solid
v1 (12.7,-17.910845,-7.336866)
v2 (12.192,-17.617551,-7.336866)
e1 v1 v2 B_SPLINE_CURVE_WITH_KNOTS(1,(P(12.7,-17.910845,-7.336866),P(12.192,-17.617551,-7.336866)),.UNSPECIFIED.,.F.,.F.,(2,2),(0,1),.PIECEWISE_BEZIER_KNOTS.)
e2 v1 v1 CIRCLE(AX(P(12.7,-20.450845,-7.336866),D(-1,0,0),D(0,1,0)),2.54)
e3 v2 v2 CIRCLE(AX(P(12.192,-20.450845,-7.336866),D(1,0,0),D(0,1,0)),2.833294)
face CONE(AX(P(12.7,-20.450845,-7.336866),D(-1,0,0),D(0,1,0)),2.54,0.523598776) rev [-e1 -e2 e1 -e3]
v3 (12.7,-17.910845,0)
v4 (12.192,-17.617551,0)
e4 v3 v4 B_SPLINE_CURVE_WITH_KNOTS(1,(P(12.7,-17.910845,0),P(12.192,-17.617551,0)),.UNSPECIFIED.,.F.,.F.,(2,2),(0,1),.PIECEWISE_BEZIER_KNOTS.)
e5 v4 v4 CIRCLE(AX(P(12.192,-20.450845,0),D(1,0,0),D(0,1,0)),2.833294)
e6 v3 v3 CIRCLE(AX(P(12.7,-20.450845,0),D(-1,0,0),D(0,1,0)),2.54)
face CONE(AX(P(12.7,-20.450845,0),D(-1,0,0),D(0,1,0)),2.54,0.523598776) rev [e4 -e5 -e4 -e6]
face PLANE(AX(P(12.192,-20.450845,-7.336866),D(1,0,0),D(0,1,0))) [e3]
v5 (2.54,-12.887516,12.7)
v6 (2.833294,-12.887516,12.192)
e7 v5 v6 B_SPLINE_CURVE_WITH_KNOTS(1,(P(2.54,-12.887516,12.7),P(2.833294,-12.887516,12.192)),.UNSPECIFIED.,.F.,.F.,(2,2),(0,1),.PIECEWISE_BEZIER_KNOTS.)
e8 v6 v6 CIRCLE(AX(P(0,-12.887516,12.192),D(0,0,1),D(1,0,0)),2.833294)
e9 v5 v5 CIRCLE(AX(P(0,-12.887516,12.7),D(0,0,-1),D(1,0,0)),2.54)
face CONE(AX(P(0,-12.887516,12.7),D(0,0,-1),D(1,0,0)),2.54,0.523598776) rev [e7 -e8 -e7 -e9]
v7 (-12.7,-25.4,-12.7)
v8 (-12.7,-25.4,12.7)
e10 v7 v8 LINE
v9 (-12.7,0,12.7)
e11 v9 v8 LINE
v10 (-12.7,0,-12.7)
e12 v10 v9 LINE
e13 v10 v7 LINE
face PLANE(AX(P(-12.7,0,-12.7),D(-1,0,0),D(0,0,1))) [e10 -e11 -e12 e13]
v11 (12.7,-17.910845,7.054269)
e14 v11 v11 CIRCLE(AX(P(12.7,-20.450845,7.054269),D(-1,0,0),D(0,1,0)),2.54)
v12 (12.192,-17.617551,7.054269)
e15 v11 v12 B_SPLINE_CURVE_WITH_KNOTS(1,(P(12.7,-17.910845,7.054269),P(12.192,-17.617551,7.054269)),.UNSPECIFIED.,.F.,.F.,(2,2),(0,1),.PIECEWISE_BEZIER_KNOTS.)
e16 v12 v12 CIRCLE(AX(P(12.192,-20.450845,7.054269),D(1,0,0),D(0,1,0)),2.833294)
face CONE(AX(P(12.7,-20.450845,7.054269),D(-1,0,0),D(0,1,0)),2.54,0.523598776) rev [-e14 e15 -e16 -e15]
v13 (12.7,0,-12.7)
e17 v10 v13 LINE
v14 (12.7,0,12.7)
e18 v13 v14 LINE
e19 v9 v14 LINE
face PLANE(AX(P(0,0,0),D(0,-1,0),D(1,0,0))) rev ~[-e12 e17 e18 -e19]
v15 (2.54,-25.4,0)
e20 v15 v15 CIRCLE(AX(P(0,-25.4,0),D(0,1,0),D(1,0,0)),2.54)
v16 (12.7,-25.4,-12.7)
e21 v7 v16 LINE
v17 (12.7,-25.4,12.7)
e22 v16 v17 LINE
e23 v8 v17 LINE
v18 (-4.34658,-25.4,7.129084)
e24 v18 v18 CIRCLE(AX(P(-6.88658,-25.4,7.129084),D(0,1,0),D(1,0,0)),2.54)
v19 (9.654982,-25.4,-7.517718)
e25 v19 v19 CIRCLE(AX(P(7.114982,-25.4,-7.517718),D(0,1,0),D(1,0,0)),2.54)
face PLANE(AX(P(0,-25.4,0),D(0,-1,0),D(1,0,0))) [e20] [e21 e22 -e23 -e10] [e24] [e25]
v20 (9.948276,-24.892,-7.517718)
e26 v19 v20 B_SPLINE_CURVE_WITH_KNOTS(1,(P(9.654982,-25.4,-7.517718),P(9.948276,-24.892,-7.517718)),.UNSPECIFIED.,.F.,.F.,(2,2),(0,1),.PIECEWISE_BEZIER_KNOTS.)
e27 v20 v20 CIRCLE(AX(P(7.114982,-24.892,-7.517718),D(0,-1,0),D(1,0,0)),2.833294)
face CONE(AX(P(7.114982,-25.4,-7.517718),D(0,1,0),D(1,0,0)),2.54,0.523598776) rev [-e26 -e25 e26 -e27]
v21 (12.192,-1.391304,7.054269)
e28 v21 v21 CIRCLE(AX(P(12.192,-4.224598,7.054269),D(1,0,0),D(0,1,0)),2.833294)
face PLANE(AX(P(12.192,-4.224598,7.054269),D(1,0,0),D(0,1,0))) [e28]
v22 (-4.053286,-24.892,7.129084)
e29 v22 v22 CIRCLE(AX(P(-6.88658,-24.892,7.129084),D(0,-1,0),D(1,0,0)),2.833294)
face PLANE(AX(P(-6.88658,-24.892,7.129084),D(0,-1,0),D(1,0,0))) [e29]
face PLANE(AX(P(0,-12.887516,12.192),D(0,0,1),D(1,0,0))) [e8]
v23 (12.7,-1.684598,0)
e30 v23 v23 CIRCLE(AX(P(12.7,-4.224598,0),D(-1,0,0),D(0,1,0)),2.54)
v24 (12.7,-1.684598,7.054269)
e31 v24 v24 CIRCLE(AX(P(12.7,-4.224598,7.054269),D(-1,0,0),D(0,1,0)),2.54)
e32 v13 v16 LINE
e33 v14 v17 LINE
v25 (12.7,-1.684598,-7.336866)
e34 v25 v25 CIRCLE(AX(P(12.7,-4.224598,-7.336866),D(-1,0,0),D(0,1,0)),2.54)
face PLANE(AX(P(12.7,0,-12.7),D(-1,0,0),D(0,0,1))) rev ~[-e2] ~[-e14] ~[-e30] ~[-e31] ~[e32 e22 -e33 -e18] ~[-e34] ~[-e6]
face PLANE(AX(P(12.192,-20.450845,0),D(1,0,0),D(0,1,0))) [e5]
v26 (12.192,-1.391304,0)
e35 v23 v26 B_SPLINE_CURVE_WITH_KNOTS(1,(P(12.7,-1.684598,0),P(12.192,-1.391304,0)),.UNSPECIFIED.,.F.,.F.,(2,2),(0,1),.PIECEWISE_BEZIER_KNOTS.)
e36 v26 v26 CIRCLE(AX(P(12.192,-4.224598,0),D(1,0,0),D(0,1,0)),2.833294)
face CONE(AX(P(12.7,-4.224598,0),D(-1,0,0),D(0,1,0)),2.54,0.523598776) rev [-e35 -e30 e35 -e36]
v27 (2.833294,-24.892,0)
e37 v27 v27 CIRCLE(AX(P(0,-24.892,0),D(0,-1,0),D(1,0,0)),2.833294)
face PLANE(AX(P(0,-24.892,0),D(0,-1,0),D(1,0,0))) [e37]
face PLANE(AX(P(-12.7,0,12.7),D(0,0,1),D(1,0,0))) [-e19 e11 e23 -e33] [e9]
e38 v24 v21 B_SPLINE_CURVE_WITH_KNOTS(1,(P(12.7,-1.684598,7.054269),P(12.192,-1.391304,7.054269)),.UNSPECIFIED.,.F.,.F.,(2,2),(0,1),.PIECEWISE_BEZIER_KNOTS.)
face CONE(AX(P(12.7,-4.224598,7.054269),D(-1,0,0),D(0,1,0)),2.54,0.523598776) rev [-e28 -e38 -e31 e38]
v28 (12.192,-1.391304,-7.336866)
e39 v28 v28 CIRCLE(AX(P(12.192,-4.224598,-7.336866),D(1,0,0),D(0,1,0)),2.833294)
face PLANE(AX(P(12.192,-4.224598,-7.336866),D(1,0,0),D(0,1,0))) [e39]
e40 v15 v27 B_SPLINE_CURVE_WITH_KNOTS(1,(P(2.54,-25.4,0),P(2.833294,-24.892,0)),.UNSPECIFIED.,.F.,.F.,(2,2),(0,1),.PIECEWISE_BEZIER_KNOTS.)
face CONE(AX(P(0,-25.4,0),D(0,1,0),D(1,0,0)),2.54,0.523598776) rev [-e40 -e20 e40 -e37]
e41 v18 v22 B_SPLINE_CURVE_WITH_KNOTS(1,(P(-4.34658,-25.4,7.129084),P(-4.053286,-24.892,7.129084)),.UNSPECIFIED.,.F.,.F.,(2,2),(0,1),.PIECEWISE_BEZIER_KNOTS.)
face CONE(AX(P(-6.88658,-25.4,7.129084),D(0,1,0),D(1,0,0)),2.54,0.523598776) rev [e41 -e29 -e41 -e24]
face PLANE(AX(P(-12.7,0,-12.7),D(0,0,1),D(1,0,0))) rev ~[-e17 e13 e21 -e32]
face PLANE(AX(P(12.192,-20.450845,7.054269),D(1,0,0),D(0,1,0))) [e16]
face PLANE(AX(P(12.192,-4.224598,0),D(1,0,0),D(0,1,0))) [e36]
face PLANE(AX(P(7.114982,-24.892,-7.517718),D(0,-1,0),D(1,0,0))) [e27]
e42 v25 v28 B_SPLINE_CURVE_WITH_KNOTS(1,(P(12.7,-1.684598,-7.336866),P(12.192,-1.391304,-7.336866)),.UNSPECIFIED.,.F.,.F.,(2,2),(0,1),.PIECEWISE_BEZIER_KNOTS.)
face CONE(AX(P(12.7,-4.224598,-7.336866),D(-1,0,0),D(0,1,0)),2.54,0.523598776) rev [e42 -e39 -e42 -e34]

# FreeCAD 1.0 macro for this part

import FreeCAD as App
import Part
import Sketcher

V = App.Vector
Q = App.Units.Quantity

doc = App.newDocument("Part")
params = doc.addObject("Spreadsheet::Sheet", "Params")
for row, (alias, value) in enumerate([
    ("sketch1_width", "1 in"),
    ("pad1_length", "1 in"),
    ("sketch2_diameter", "0.2 in"),
    ("pocket1_length", "0.02 in"),
    ("pocket1_taper", "30 deg"),
    ("sketch3_diameter", "0.2 in"),
    ("pocket2_length", "0.02 in"),
    ("pocket2_taper", "30 deg"),
    ("sketch4_diameter", "0.2 in"),
    ("pocket3_length", "0.02 in"),
    ("pocket3_taper", "30 deg"),
], start=1):
    params.set(f"A{row}", alias)
    params.set(f"B{row}", "=" + value)
    params.setAlias(f"B{row}", alias)

body = doc.addObject("PartDesign::Body", "Body")

# Sketch on XZ plane
sketch1 = doc.addObject("Sketcher::SketchObject", "Sketch")
body.addObject(sketch1)
sketch1.AttachmentSupport = (doc.XZ_Plane, [""])
sketch1.MapMode = "FlatFace"
sketch1.addGeometry([
    Part.LineSegment(V(-13, 13, 0), V(-13, -13, 0)),
    Part.LineSegment(V(-13, -13, 0), V(13, -13, 0)),
    Part.LineSegment(V(13, -13, 0), V(13, 13, 0)),
    Part.LineSegment(V(13, 13, 0), V(-13, 13, 0)),
], False)
sketch1.addConstraint([
    Sketcher.Constraint("Coincident", 0, 2, 1, 1),
    Sketcher.Constraint("Coincident", 1, 2, 2, 1),
    Sketcher.Constraint("Coincident", 2, 2, 3, 1),
    Sketcher.Constraint("Coincident", 3, 2, 0, 1),
    Sketcher.Constraint("Vertical", 0),
    Sketcher.Constraint("Horizontal", 1),
    Sketcher.Constraint("Vertical", 2),
    Sketcher.Constraint("Horizontal", 3),
    Sketcher.Constraint("Symmetric", 0, 2, 2, 2, -1, 1),
    Sketcher.Constraint("Equal", 3, 0),
    Sketcher.Constraint("DistanceX", 1, 1, 1, 2, Q("1 in")),
])
sketch1.setExpression("Constraints[10]", "Params.sketch1_width")
pad1 = doc.addObject("PartDesign::Pad", "Pad")
body.addObject(pad1)
pad1.Profile = sketch1
pad1.setExpression("Length", "Params.pad1_length")

# Sketch on XY plane
sketch2 = doc.addObject("Sketcher::SketchObject", "Sketch001")
body.addObject(sketch2)
sketch2.AttachmentSupport = (doc.XY_Plane, [""])
sketch2.MapMode = "FlatFace"
sketch2.AttachmentOffset = App.Placement(V(0, 0, 0.5 * 25.4), App.Rotation())
sketch2.addGeometry(Part.Circle(V(0, -12.9, 0), V(0, 0, 1), 2.5), False)
sketch2.addConstraint([
    Sketcher.Constraint("PointOnObject", 0, 3, -2),
    Sketcher.Constraint("Diameter", 0, Q("0.2 in")),
    Sketcher.Constraint("DistanceY", 0, 3, -1, 1, Q("12.887516 mm")),
])
sketch2.setExpression("Constraints[1]", "Params.sketch2_diameter")
pocket1 = doc.addObject("PartDesign::Pocket", "Pocket")
body.addObject(pocket1)
pocket1.Profile = sketch2
pocket1.setExpression("Length", "Params.pocket1_length")
pocket1.setExpression("TaperAngle", "Params.pocket1_taper")

# Sketch on XZ plane
sketch3 = doc.addObject("Sketcher::SketchObject", "Sketch002")
body.addObject(sketch3)
sketch3.AttachmentSupport = (doc.XZ_Plane, [""])
sketch3.MapMode = "FlatFace"
sketch3.AttachmentOffset = App.Placement(V(0, 0, 1 * 25.4), App.Rotation())
sketch3.addGeometry([
    Part.Circle(V(-6.9, 7.1, 0), V(0, 0, 1), 2.5),
    Part.Circle(V(0, 0, 0), V(0, 0, 1), 2.5),
    Part.Circle(V(7.1, -7.5, 0), V(0, 0, 1), 2.5),
], False)
sketch3.addConstraint([
    Sketcher.Constraint("Coincident", 1, 3, -1, 1),
    Sketcher.Constraint("Equal", 0, 1),
    Sketcher.Constraint("Equal", 1, 2),
    Sketcher.Constraint("Diameter", 0, Q("0.2 in")),
    Sketcher.Constraint("DistanceY", 2, 3, 0, 3, Q("14.646802 mm")),
    Sketcher.Constraint("DistanceX", 0, 3, -1, 1, Q("6.88658 mm")),
    Sketcher.Constraint("DistanceY", -1, 1, 0, 3, Q("7.129084 mm")),
    Sketcher.Constraint("DistanceX", -1, 1, 2, 3, Q("7.114982 mm")),
])
sketch3.setExpression("Constraints[3]", "Params.sketch3_diameter")
pocket2 = doc.addObject("PartDesign::Pocket", "Pocket001")
body.addObject(pocket2)
pocket2.Profile = sketch3
pocket2.setExpression("Length", "Params.pocket2_length")
pocket2.setExpression("TaperAngle", "Params.pocket2_taper")

# Sketch on YZ plane
sketch4 = doc.addObject("Sketcher::SketchObject", "Sketch003")
body.addObject(sketch4)
sketch4.AttachmentSupport = (doc.YZ_Plane, [""])
sketch4.MapMode = "FlatFace"
sketch4.AttachmentOffset = App.Placement(V(0, 0, 0.5 * 25.4), App.Rotation())
sketch4.addGeometry([
    Part.Circle(V(-20.5, 7.1, 0), V(0, 0, 1), 2.5),  # 0
    Part.Circle(V(-20.5, 0, 0), V(0, 0, 1), 2.5),  # 1
    Part.Circle(V(-20.5, -7.3, 0), V(0, 0, 1), 2.5),  # 2
    Part.Circle(V(-4.2, -7.3, 0), V(0, 0, 1), 2.5),  # 3
    Part.Circle(V(-4.2, 0, 0), V(0, 0, 1), 2.5),  # 4
    Part.Circle(V(-4.2, 7.1, 0), V(0, 0, 1), 2.5),  # 5
], False)
sketch4.addConstraint([
    Sketcher.Constraint("Equal", 0, 1),
    Sketcher.Constraint("Equal", 1, 2),
    Sketcher.Constraint("Equal", 2, 3),
    Sketcher.Constraint("Equal", 3, 4),
    Sketcher.Constraint("Equal", 4, 5),
    Sketcher.Constraint("PointOnObject", 1, 3, -1),
    Sketcher.Constraint("PointOnObject", 4, 3, -1),
    Sketcher.Constraint("Horizontal", 2, 3, 3, 3),
    Sketcher.Constraint("Horizontal", 0, 3, 5, 3),
    Sketcher.Constraint("Vertical", 0, 3, 1, 3),
    Sketcher.Constraint("Vertical", 1, 3, 2, 3),
    Sketcher.Constraint("Vertical", 3, 3, 4, 3),
    Sketcher.Constraint("Vertical", 4, 3, 5, 3),
    Sketcher.Constraint("Diameter", 0, Q("0.2 in")),
    Sketcher.Constraint("DistanceY", -1, 1, 0, 3, Q("7.054269 mm")),
    Sketcher.Constraint("DistanceX", 0, 3, -1, 1, Q("20.450845 mm")),
    Sketcher.Constraint("DistanceY", 2, 3, -1, 1, Q("7.336866 mm")),
    Sketcher.Constraint("DistanceX", 3, 3, -1, 1, Q("4.224598 mm")),
])
sketch4.setExpression("Constraints[13]", "Params.sketch4_diameter")
pocket3 = doc.addObject("PartDesign::Pocket", "Pocket002")
body.addObject(pocket3)
pocket3.Profile = sketch4
pocket3.setExpression("Length", "Params.pocket3_length")
pocket3.setExpression("TaperAngle", "Params.pocket3_taper")

doc.recompute()
